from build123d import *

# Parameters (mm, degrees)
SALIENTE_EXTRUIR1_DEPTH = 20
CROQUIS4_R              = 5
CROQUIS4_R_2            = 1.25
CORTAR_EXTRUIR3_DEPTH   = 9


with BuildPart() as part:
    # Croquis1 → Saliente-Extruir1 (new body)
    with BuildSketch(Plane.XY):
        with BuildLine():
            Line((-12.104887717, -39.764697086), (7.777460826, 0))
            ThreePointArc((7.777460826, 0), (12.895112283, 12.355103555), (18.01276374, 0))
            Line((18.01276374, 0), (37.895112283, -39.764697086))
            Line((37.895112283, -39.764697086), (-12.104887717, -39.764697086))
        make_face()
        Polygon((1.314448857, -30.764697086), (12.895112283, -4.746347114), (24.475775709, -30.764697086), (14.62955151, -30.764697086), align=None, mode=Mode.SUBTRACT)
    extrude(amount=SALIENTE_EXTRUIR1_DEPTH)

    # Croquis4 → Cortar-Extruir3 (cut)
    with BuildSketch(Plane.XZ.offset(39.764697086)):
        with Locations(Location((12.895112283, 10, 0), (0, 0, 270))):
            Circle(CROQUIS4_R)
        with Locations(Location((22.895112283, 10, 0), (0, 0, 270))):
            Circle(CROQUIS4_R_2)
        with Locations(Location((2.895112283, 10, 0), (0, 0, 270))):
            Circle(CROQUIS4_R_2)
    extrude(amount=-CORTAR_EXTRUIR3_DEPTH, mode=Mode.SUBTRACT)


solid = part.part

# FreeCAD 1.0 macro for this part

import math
import FreeCAD as App
import Part
import Sketcher

doc = App.newDocument("Part")
params = doc.addObject("Spreadsheet::Sheet", "Params")
for row, (alias, value) in enumerate([
    ("sketch1_width", "50 mm"),
    ("pad1_length", "20 mm"),
    ("sketch2_diameter", "10 mm"),
    ("sketch2_diameter2", "2.5 mm"),
    ("pocket1_length", "9 mm"),
], start=1):
    params.set(f"A{row}", alias)
    params.set(f"B{row}", "=" + value)
    params.setAlias(f"B{row}", alias)

body = doc.addObject("PartDesign::Body", "Body")

# Sketch on XY plane
sketch1 = body.newObject("Sketcher::SketchObject", "Sketch")
sketch1.AttachmentSupport = (doc.getObject("XY_Plane"), [""])
sketch1.MapMode = "FlatFace"
sketch1.addGeometry([
    Part.LineSegment(App.Vector(7.777461, 0, 0), App.Vector(-12.104888, -39.764697, 0)),  # 0
    Part.LineSegment(App.Vector(-12.104888, -39.764697, 0), App.Vector(37.895112, -39.764697, 0)),  # 1
    Part.LineSegment(App.Vector(37.895112, -39.764697, 0), App.Vector(18.012764, 0, 0)),  # 2
    Part.ArcOfCircle(Part.Circle(App.Vector(12.895112, 5.117651, 0), App.Vector(0, 0, 1), 7.237452), math.radians(-45), math.radians(225)),  # 3
    Part.LineSegment(App.Vector(1.314449, -30.764697, 0), App.Vector(12.895112, -4.746347, 0)),  # 4
    Part.LineSegment(App.Vector(12.895112, -4.746347, 0), App.Vector(24.475776, -30.764697, 0)),  # 5
    Part.LineSegment(App.Vector(24.475776, -30.764697, 0), App.Vector(1.314449, -30.764697, 0)),  # 6
], False)
sketch1.addConstraint([
    Sketcher.Constraint("Coincident", 0, 2, 1, 1),
    Sketcher.Constraint("Coincident", 1, 2, 2, 1),
    Sketcher.Constraint("Coincident", 2, 2, 3, 1),
    Sketcher.Constraint("Coincident", 3, 2, 0, 1),
    Sketcher.Constraint("Coincident", 4, 2, 5, 1),
    Sketcher.Constraint("Coincident", 5, 2, 6, 1),
    Sketcher.Constraint("Coincident", 6, 2, 4, 1),
    Sketcher.Constraint("Horizontal", 1),
    Sketcher.Constraint("Horizontal", 6),
    Sketcher.Constraint("PointOnObject", 2, 2, -1),
    Sketcher.Constraint("PointOnObject", 3, 2, -1),
    Sketcher.Constraint("Vertical", 3, 3, 4, 2),
    Sketcher.Constraint("Equal", 0, 2),
    Sketcher.Constraint("Equal", 4, 5),
    Sketcher.Constraint("DistanceX", 1, 1, 1, 2, 50.0),
    Sketcher.Constraint("DistanceY", 1, 2, 5, 2, 9.0),
    Sketcher.Constraint("Radius", 3, 7.237452),
    Sketcher.Constraint("DistanceY", 4, 2, 3, 3, 9.863999),
    Sketcher.Constraint("DistanceX", 6, 2, 6, 1, 23.161327),
    Sketcher.Constraint("DistanceY", -1, 1, 3, 3, 5.117651),
    Sketcher.Constraint("DistanceX", -1, 1, 3, 2, 7.777461),
    Sketcher.Constraint("DistanceY", 0, 2, 3, 3, 44.882349),
])
sketch1.setExpression("Constraints[14]", "Params.sketch1_width")
pad1 = body.newObject("PartDesign::Pad", "Pad")
pad1.Profile = sketch1
pad1.setExpression("Length", "Params.pad1_length")

# Sketch on XZ plane
sketch2 = body.newObject("Sketcher::SketchObject", "Sketch001")
sketch2.AttachmentSupport = (doc.getObject("XZ_Plane"), [""])
sketch2.MapMode = "FlatFace"
sketch2.AttachmentOffset = App.Placement(App.Vector(0, 0, 39.764697), App.Rotation())
sketch2.addGeometry([
    Part.Circle(App.Vector(12.895112, 10, 0), App.Vector(0, 0, 1), 5),
    Part.Circle(App.Vector(22.895112, 10, 0), App.Vector(0, 0, 1), 1.25),
    Part.Circle(App.Vector(2.895112, 10, 0), App.Vector(0, 0, 1), 1.25),
], False)
sketch2.addConstraint([
    Sketcher.Constraint("Equal", 1, 2),
    Sketcher.Constraint("Horizontal", 0, 3, 1, 3),
    Sketcher.Constraint("Horizontal", 1, 3, 2, 3),
    Sketcher.Constraint("Diameter", 0, 10.0),
    Sketcher.Constraint("Diameter", 1, 2.5),
    Sketcher.Constraint("DistanceY", -1, 1, 0, 3, 10.0),
    Sketcher.Constraint("DistanceX", 0, 3, 1, 3, 10.0),
    Sketcher.Constraint("DistanceX", 2, 3, 0, 3, 10.0),
    Sketcher.Constraint("DistanceX", -1, 1, 0, 3, 12.895112),
])
sketch2.setExpression("Constraints[3]", "Params.sketch2_diameter")
sketch2.setExpression("Constraints[4]", "Params.sketch2_diameter2")
pocket1 = body.newObject("PartDesign::Pocket", "Pocket")
pocket1.Profile = sketch2
pocket1.setExpression("Length", "Params.pocket1_length")

doc.recompute()
